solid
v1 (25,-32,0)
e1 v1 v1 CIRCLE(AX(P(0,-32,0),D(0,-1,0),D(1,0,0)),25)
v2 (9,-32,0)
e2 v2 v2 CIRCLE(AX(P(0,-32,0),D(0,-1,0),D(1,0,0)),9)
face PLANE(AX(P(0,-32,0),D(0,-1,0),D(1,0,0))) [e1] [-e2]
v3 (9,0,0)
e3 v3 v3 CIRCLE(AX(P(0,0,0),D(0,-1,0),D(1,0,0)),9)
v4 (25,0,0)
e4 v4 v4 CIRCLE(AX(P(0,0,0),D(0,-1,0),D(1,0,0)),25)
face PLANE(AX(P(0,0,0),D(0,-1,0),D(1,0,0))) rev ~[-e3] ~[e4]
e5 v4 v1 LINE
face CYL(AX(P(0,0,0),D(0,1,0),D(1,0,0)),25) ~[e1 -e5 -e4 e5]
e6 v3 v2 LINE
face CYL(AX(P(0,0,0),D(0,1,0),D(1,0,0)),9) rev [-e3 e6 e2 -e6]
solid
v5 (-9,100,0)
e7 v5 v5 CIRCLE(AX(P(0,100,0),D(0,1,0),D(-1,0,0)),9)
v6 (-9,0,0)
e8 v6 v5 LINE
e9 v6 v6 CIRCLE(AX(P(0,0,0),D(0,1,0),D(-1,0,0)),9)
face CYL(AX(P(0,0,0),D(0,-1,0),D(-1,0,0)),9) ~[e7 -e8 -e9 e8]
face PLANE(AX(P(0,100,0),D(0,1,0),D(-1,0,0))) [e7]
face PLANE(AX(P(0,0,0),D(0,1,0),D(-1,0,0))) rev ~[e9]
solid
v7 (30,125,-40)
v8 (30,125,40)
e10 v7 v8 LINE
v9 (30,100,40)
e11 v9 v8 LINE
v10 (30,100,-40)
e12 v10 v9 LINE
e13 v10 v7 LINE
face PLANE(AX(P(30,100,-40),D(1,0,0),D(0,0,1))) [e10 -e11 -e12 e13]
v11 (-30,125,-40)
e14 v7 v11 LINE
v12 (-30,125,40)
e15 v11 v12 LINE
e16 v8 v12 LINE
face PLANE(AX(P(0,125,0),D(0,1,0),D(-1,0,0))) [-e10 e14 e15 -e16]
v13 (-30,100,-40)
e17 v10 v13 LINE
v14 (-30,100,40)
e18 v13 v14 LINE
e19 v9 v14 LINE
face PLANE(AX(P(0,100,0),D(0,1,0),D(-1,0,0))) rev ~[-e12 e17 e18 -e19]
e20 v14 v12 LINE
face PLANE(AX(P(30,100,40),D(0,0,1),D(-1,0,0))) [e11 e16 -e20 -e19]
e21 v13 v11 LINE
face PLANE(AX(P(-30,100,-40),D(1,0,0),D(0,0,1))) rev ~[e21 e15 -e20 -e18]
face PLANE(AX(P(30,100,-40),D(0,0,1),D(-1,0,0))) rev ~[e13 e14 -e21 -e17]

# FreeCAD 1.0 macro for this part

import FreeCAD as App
import Part
import Sketcher

doc = App.newDocument("Part")
params = doc.addObject("Spreadsheet::Sheet", "Params")
for row, (alias, value) in enumerate([
    ("sketch1_diameter", "50 mm"),
    ("sketch1_diameter2", "18 mm"),
    ("pad1_length", "32 mm"),
    ("sketch2_diameter", "18 mm"),
    ("pad2_length", "100 mm"),
    ("sketch3_width", "60 mm"),
    ("sketch3_height", "80 mm"),
    ("pad3_length", "25 mm"),
], start=1):
    params.set(f"A{row}", alias)
    params.set(f"B{row}", "=" + value)
    params.setAlias(f"B{row}", alias)

body = doc.addObject("PartDesign::Body", "Body")

sketch1 = doc.addObject("Sketcher::SketchObject", "Sketch")
body.addObject(sketch1)
sketch1.AttachmentSupport = (doc.XZ_Plane, [""])
sketch1.MapMode = "FlatFace"
sketch1.addGeometry([
    Part.Circle(App.Vector(0, 0, 0), App.Vector(0, 0, 1), 25),
    Part.Circle(App.Vector(0, 0, 0), App.Vector(0, 0, 1), 9),
], False)
sketch1.addConstraint([
    Sketcher.Constraint("Coincident", 0, 3, -1, 1),
    Sketcher.Constraint("Coincident", 1, 3, -1, 1),
    Sketcher.Constraint("Diameter", 0, 50.0),
    Sketcher.Constraint("Diameter", 1, 18.0),
])
sketch1.setExpression("Constraints[2]", "Params.sketch1_diameter")
sketch1.setExpression("Constraints[3]", "Params.sketch1_diameter2")
pad1 = doc.addObject("PartDesign::Pad", "Pad")
body.addObject(pad1)
pad1.Profile = sketch1
pad1.setExpression("Length", "Params.pad1_length")
body2 = doc.addObject("PartDesign::Body", "Body001")

sketch2 = doc.addObject("Sketcher::SketchObject", "Sketch001")
body2.addObject(sketch2)
sketch2.AttachmentSupport = (doc.getObject("XZ_Plane001"), [""])
sketch2.MapMode = "FlatFace"
sketch2.addGeometry(Part.Circle(App.Vector(0, 0, 0), App.Vector(0, 0, 1), 9), False)
sketch2.addConstraint([
    Sketcher.Constraint("Coincident", 0, 3, -1, 1),
    Sketcher.Constraint("Diameter", 0, 18.0),
])
sketch2.setExpression("Constraints[1]", "Params.sketch2_diameter")
pad2 = doc.addObject("PartDesign::Pad", "Pad001")
body2.addObject(pad2)
pad2.Profile = sketch2
pad2.setExpression("Length", "Params.pad2_length")
pad2.Reversed = True
body3 = doc.addObject("PartDesign::Body", "Body002")

sketch3 = doc.addObject("Sketcher::SketchObject", "Sketch002")
body3.addObject(sketch3)
sketch3.AttachmentSupport = (doc.getObject("XZ_Plane002"), [""])
sketch3.MapMode = "FlatFace"
sketch3.AttachmentOffset = App.Placement(App.Vector(0, 0, -100), App.Rotation())
sketch3.addGeometry([
    Part.LineSegment(App.Vector(30, 40, 0), App.Vector(30, -40, 0)),
    Part.LineSegment(App.Vector(30, -40, 0), App.Vector(-30, -40, 0)),
    Part.LineSegment(App.Vector(-30, -40, 0), App.Vector(-30, 40, 0)),
    Part.LineSegment(App.Vector(-30, 40, 0), App.Vector(30, 40, 0)),
], False)
sketch3.addConstraint([
    Sketcher.Constraint("Coincident", 0, 2, 1, 1),
    Sketcher.Constraint("Coincident", 1, 2, 2, 1),
    Sketcher.Constraint("Coincident", 2, 2, 3, 1),
    Sketcher.Constraint("Coincident", 3, 2, 0, 1),
    Sketcher.Constraint("Vertical", 0),
    Sketcher.Constraint("Horizontal", 1),
    Sketcher.Constraint("Vertical", 2),
    Sketcher.Constraint("Horizontal", 3),
    Sketcher.Constraint("Symmetric", 0, 2, 2, 2, -1, 1),
    Sketcher.Constraint("DistanceX", 1, 2, 1, 1, 60.0),
    Sketcher.Constraint("DistanceY", 0, 2, 0, 1, 80.0),
])
sketch3.setExpression("Constraints[9]", "Params.sketch3_width")
sketch3.setExpression("Constraints[10]", "Params.sketch3_height")
pad3 = doc.addObject("PartDesign::Pad", "Pad002")
body3.addObject(pad3)
pad3.Profile = sketch3
pad3.setExpression("Length", "Params.pad3_length")
pad3.Reversed = True

doc.recompute()
